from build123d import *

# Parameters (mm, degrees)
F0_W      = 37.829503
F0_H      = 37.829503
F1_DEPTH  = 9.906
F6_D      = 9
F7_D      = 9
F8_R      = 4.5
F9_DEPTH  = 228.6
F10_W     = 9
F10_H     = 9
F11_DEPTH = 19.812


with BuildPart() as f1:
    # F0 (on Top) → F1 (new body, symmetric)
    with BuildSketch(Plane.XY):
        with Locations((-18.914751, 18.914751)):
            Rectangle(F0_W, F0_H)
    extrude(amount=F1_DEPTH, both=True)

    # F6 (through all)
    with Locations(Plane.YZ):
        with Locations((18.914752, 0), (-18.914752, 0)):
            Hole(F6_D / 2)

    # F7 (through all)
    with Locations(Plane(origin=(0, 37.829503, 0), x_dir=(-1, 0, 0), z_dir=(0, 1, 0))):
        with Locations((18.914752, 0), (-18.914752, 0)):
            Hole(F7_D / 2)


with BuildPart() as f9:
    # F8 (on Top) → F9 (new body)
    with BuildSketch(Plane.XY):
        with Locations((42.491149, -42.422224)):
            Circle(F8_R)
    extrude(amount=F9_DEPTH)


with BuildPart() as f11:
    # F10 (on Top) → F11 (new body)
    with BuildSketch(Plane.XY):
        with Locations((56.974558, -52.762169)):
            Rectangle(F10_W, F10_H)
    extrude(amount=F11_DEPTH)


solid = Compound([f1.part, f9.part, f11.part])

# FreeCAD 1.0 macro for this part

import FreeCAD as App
import Part
import Sketcher
from FreeCAD import Vector
Q = App.Units.Quantity


def add_polygon(sketch, points):
    """Adds a closed chain of lines whose ends are joined by coincident constraints."""
    first, n = sketch.GeometryCount, len(points)
    for a, b in zip(points, points[1:] + points[:1]):
        sketch.addGeometry(Part.LineSegment(App.Vector(*a, 0), App.Vector(*b, 0)), False)
    for i in range(n):
        sketch.addConstraint(Sketcher.Constraint("Coincident", first + i, 2, first + (i + 1) % n, 1))

doc = App.newDocument("Part")
body = doc.addObject("PartDesign::Body", "Body")

sketch1 = doc.addObject("Sketcher::SketchObject", "Sketch")
body.addObject(sketch1)
sketch1.AttachmentSupport = (doc.XY_Plane, [""])
sketch1.MapMode = "FlatFace"
add_polygon(sketch1, [(-37.829502, 37.829502), (-37.829502, 0), (0, 0), (0, 37.829502)])
sketch1.addConstraint([
    Sketcher.Constraint("Vertical", 0),
    Sketcher.Constraint("Horizontal", 1),
    Sketcher.Constraint("Vertical", 2),
    Sketcher.Constraint("Horizontal", 3),
    Sketcher.Constraint("Coincident", 1, 2, -1, 1),
    Sketcher.Constraint("Equal", 3, 0),
    Sketcher.Constraint("DistanceX", 1, 1, 1, 2, 37.829503),
])
pad1 = doc.addObject("PartDesign::Pad", "Pad")
body.addObject(pad1)
pad1.Profile = sketch1
pad1.Length = Q("0.78 in")
pad1.Midplane = True

sketch2 = doc.addObject("Sketcher::SketchObject", "Sketch001")
body.addObject(sketch2)
sketch2.AttachmentSupport = (doc.YZ_Plane, [""])
sketch2.MapMode = "FlatFace"
sketch2.addGeometry([
    Part.Circle(Vector(18.914752, 0, 0), Vector(0, 0, 1), 4.5),
    Part.Circle(Vector(-18.914752, 0, 0), Vector(0, 0, 1), 4.5),
], False)
sketch2.addConstraint([
    Sketcher.Constraint("Equal", 0, 1),
    Sketcher.Constraint("Symmetric", 0, 3, 1, 3, -1, 1),
    Sketcher.Constraint("PointOnObject", 0, 3, -1),
    Sketcher.Constraint("Diameter", 0, 9.0),
    Sketcher.Constraint("DistanceX", -1, 1, 0, 3, 18.914752),
])
doc.recompute()
hole = doc.addObject("PartDesign::Hole", "Hole")
body.addObject(hole)
hole.Profile = sketch2
hole.ThreadType = "None"
hole.Diameter = 9
hole.DepthType = "ThroughAll"

sketch3 = doc.addObject("Sketcher::SketchObject", "Sketch002")
body.addObject(sketch3)
sketch3.AttachmentSupport = (doc.XZ_Plane, [""])
sketch3.MapMode = "FlatFace"
sketch3.AttachmentOffset = App.Placement(Vector(0, 0, -37.829503), App.Rotation())
sketch3.addGeometry([
    Part.Circle(Vector(-18.914752, 0, 0), Vector(0, 0, 1), 4.5),
    Part.Circle(Vector(18.914752, 0, 0), Vector(0, 0, 1), 4.5),
], False)
sketch3.addConstraint([
    Sketcher.Constraint("Equal", 0, 1),
    Sketcher.Constraint("Symmetric", 0, 3, 1, 3, -1, 1),
    Sketcher.Constraint("PointOnObject", 0, 3, -1),
    Sketcher.Constraint("Diameter", 0, 9.0),
    Sketcher.Constraint("DistanceX", 0, 3, -1, 1, 18.914752),
])
doc.recompute()
hole2 = doc.addObject("PartDesign::Hole", "Hole001")
body.addObject(hole2)
hole2.Profile = sketch3
hole2.ThreadType = "None"
hole2.Diameter = 9
hole2.DepthType = "ThroughAll"
hole2.Reversed = True
body2 = doc.addObject("PartDesign::Body", "Body001")

sketch4 = doc.addObject("Sketcher::SketchObject", "Sketch003")
body2.addObject(sketch4)
sketch4.AttachmentSupport = (doc.getObject("XY_Plane001"), [""])
sketch4.MapMode = "FlatFace"
sketch4.addGeometry(Part.Circle(Vector(42.491149, -42.422224, 0), Vector(0, 0, 1), 4.5), False)
sketch4.addConstraint([
    Sketcher.Constraint("Diameter", 0, 9.0),
    Sketcher.Constraint("DistanceX", -1, 1, 0, 3, 42.491149),
    Sketcher.Constraint("DistanceY", 0, 3, -1, 1, 42.422224),
])
pad2 = doc.addObject("PartDesign::Pad", "Pad001")
body2.addObject(pad2)
pad2.Profile = sketch4
pad2.Length = Q("9 in")
body3 = doc.addObject("PartDesign::Body", "Body002")

sketch5 = doc.addObject("Sketcher::SketchObject", "Sketch004")
body3.addObject(sketch5)
sketch5.AttachmentSupport = (doc.getObject("XY_Plane002"), [""])
sketch5.MapMode = "FlatFace"
add_polygon(sketch5, [(52.474558, -48.262169), (52.474558, -57.262169), (61.474558, -57.262169), (61.474558, -48.262169)])
sketch5.addConstraint([
    Sketcher.Constraint("Vertical", 0),
    Sketcher.Constraint("Horizontal", 1),
    Sketcher.Constraint("Vertical", 2),
    Sketcher.Constraint("Horizontal", 3),
    Sketcher.Constraint("Equal", 3, 0),
    Sketcher.Constraint("DistanceX", 1, 1, 1, 2, 9.0),
    Sketcher.Constraint("DistanceX", -1, 1, 0, 2, 52.474558),
    Sketcher.Constraint("DistanceY", 0, 2, -1, 1, 57.262169),
])
pad3 = doc.addObject("PartDesign::Pad", "Pad002")
body3.addObject(pad3)
pad3.Profile = sketch5
pad3.Length = Q("0.78 in")

doc.recompute()
